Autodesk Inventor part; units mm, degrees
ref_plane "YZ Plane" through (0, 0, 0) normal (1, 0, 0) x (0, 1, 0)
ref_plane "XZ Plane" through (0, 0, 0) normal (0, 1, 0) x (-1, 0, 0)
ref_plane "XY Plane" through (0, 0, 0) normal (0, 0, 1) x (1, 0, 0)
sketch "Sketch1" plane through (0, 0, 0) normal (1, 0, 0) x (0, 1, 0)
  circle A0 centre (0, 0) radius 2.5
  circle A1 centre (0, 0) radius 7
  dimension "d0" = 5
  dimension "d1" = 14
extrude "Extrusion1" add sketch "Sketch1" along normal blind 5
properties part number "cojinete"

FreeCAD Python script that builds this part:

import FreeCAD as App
import Part
import Sketcher

doc = App.newDocument("Part")
body = doc.addObject("PartDesign::Body", "Body")

# Sketch on YZ plane
sketch1 = body.newObject("Sketcher::SketchObject", "Sketch")
sketch1.AttachmentSupport = (doc.getObject("YZ_Plane"), [""])
sketch1.MapMode = "FlatFace"
sketch1.addGeometry([
    Part.Circle(App.Vector(0, 0, 0), App.Vector(0, 0, 1), 7),
    Part.Circle(App.Vector(0, 0, 0), App.Vector(0, 0, 1), 2.5),
], False)
sketch1.addConstraint([
    Sketcher.Constraint("Coincident", 0, 3, -1, 1),
    Sketcher.Constraint("Coincident", 1, 3, -1, 1),
    Sketcher.Constraint("Diameter", 0, 14.0),
    Sketcher.Constraint("Diameter", 1, 5.0),
])
pad1 = body.newObject("PartDesign::Pad", "Pad")
pad1.Profile = sketch1
pad1.Length = 5

doc.recompute()
